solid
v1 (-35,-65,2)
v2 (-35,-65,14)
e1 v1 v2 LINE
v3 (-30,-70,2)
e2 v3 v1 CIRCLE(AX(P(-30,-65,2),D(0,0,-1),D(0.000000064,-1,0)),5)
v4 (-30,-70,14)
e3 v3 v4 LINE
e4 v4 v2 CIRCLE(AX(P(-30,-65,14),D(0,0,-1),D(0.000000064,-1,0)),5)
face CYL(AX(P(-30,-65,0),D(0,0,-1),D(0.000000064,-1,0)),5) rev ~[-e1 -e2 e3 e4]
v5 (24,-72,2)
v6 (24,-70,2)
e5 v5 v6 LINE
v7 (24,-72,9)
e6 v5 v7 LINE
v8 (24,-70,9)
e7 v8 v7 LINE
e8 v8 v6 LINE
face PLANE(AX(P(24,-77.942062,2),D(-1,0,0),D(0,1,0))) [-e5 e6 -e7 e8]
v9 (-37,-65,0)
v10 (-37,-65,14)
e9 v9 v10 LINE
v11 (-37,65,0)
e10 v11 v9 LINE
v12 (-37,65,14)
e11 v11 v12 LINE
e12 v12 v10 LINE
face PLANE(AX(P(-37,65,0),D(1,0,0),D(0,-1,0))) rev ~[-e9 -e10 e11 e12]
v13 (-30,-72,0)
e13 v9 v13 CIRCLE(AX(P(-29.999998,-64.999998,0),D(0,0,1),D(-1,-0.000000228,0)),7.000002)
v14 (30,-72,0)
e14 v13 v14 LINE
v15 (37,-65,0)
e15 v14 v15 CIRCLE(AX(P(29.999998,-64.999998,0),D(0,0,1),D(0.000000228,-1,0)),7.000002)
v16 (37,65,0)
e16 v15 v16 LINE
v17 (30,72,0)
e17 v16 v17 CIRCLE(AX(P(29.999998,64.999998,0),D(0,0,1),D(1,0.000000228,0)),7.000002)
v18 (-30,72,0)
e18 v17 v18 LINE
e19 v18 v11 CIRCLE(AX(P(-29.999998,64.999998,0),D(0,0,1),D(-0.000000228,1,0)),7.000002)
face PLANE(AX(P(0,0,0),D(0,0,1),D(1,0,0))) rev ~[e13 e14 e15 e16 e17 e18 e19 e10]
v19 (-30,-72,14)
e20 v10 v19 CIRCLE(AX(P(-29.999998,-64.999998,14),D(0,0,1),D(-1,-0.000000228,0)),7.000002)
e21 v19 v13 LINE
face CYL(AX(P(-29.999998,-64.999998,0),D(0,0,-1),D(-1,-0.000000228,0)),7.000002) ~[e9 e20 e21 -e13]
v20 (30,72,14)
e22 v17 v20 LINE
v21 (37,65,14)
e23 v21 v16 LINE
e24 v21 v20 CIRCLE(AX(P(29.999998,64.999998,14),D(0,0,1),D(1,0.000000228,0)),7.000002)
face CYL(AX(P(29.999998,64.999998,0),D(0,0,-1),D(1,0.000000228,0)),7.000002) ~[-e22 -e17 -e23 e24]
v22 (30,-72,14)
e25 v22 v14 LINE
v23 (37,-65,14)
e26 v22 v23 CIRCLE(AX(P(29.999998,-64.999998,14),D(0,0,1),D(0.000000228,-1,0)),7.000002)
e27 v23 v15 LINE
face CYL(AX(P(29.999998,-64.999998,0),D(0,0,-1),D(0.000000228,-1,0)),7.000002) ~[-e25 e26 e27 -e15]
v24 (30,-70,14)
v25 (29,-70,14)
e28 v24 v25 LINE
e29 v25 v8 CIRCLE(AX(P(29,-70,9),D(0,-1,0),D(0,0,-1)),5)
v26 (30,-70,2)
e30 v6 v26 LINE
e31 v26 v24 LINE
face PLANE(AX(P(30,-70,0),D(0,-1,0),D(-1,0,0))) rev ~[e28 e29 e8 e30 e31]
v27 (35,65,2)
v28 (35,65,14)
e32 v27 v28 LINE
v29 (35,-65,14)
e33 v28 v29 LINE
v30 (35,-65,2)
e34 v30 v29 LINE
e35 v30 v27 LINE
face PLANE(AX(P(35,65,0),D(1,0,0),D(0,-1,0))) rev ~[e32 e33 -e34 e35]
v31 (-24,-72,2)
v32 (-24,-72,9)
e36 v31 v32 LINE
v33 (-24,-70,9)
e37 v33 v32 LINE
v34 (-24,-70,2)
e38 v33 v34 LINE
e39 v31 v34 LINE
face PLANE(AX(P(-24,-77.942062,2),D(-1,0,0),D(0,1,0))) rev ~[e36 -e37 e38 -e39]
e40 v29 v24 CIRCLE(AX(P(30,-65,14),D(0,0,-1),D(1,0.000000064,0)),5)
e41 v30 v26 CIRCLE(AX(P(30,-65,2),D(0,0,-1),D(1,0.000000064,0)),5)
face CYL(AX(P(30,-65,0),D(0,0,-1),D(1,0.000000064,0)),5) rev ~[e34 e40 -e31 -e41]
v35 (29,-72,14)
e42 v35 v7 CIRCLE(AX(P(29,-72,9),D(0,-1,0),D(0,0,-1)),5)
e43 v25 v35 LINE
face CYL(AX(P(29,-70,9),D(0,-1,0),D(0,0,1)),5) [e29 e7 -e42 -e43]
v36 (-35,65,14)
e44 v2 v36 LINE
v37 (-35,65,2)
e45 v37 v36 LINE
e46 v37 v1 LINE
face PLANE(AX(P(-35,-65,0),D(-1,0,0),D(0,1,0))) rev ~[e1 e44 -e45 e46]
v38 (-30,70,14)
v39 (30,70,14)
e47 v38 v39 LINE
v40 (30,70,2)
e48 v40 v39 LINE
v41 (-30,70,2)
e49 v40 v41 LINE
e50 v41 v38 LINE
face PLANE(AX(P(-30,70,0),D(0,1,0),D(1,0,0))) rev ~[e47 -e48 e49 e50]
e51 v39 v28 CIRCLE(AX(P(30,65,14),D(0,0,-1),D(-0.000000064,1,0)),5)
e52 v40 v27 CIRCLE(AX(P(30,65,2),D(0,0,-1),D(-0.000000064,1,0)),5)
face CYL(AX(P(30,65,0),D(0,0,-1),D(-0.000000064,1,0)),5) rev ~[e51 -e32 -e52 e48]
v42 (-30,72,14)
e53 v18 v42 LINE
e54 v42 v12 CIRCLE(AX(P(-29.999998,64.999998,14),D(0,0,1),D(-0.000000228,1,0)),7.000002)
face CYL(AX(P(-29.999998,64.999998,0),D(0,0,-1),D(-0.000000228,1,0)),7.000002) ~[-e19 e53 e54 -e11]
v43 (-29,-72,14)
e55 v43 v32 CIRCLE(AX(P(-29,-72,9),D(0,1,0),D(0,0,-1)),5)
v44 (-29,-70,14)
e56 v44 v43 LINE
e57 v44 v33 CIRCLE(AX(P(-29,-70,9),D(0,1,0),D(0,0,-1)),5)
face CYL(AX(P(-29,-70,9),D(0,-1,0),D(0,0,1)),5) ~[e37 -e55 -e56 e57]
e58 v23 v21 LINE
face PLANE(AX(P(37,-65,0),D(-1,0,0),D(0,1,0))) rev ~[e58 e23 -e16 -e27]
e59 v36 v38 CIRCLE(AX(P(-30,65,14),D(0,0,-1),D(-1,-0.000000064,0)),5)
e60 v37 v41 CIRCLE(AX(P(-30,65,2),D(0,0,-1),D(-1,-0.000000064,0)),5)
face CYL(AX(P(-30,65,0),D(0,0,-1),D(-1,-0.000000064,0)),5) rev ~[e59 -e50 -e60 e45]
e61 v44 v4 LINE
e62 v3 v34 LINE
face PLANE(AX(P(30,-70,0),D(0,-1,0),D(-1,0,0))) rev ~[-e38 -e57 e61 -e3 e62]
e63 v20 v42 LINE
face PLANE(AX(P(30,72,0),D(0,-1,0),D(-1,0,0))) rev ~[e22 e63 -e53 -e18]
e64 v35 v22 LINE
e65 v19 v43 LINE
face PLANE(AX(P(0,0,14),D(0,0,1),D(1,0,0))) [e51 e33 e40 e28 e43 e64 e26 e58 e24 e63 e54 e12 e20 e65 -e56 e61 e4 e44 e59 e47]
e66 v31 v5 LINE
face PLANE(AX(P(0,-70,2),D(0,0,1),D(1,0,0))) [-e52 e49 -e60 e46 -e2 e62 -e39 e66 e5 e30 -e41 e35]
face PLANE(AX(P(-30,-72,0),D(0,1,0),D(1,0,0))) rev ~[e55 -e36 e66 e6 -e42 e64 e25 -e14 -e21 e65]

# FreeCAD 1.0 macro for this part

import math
import FreeCAD as App
import Part
import Sketcher
from FreeCAD import Vector
Q = App.Units.Quantity


def edges_at(feature, points):
    """Names of the edges that pass closest to the given points."""
    edges = feature.Shape.Edges
    near = lambda p: min(range(len(edges)), key=lambda i: edges[i].distToShape(Part.Vertex(*p))[0])
    return sorted({f"Edge{near(p) + 1}" for p in points})


def add_polygon(sketch, points):
    """Adds a closed chain of lines whose ends are joined by coincident constraints."""
    first, n = sketch.GeometryCount, len(points)
    for a, b in zip(points, points[1:] + points[:1]):
        sketch.addGeometry(Part.LineSegment(App.Vector(*a, 0), App.Vector(*b, 0)), False)
    for i in range(n):
        sketch.addConstraint(Sketcher.Constraint("Coincident", first + i, 2, first + (i + 1) % n, 1))

doc = App.newDocument("Part")
body = doc.addObject("PartDesign::Body", "Body")

# Sketch on XY plane
sketch1 = doc.addObject("Sketcher::SketchObject", "Sketch")
body.addObject(sketch1)
sketch1.AttachmentSupport = (doc.XY_Plane, [""])
sketch1.MapMode = "FlatFace"
sketch1.addGeometry([
    Part.ArcOfCircle(Part.Circle(Vector(29.999998, 64.999998, 0), Vector(0, 0, 1), 7.000002), math.radians(0.000013), math.radians(89.999987)),  # 0
    Part.LineSegment(Vector(30, 72, 0), Vector(-30, 72, 0)),  # 1
    Part.ArcOfCircle(Part.Circle(Vector(-29.999998, 64.999998, 0), Vector(0, 0, 1), 7.000002), math.radians(90.000013), math.radians(179.999987)),  # 2
    Part.LineSegment(Vector(-37, 65, 0), Vector(-37, -65, 0)),  # 3
    Part.ArcOfCircle(Part.Circle(Vector(-29.999998, -64.999998, 0), Vector(0, 0, 1), 7.000002), math.radians(-179.999987), math.radians(-90.000013)),  # 4
    Part.LineSegment(Vector(-30, -72, 0), Vector(30, -72, 0)),  # 5
    Part.ArcOfCircle(Part.Circle(Vector(29.999998, -64.999998, 0), Vector(0, 0, 1), 7.000002), math.radians(-89.999987), math.radians(-0.000013)),  # 6
    Part.LineSegment(Vector(37, -65, 0), Vector(37, 65, 0)),  # 7
], False)
sketch1.addConstraint([
    Sketcher.Constraint("Tangent", 0, 2, 1, 1),
    Sketcher.Constraint("Tangent", 1, 2, 2, 1),
    Sketcher.Constraint("Tangent", 2, 2, 3, 1),
    Sketcher.Constraint("Tangent", 3, 2, 4, 1),
    Sketcher.Constraint("Tangent", 4, 2, 5, 1),
    Sketcher.Constraint("Tangent", 5, 2, 6, 1),
    Sketcher.Constraint("Tangent", 6, 2, 7, 1),
    Sketcher.Constraint("Tangent", 7, 2, 0, 1),
    Sketcher.Constraint("Horizontal", 1),
    Sketcher.Constraint("Vertical", 3),
    Sketcher.Constraint("Horizontal", 5),
    Sketcher.Constraint("Vertical", 7),
    Sketcher.Constraint("Equal", 0, 2),
    Sketcher.Constraint("Equal", 2, 4),
    Sketcher.Constraint("Equal", 4, 6),
    Sketcher.Constraint("Symmetric", 0, 3, 4, 3, -1, 1),
    Sketcher.Constraint("Radius", 0, Q("7.000002 mm")),
    Sketcher.Constraint("DistanceX", 1, 2, 1, 1, Q("60 mm")),
    Sketcher.Constraint("DistanceY", 3, 2, 3, 1, Q("130 mm")),
])
pad1 = doc.addObject("PartDesign::Pad", "Pad")
body.addObject(pad1)
pad1.Profile = sketch1
pad1.Length = 2

# Sketch on XY plane
sketch2 = doc.addObject("Sketcher::SketchObject", "Sketch001")
body.addObject(sketch2)
sketch2.AttachmentSupport = (doc.XY_Plane, [""])
sketch2.MapMode = "FlatFace"
sketch2.addGeometry([
    Part.ArcOfCircle(Part.Circle(Vector(29.999998, 64.999998, 0), Vector(0, 0, 1), 7.000002), math.radians(0.000013), math.radians(89.999987)),  # 0
    Part.LineSegment(Vector(30, 72, 0), Vector(-30, 72, 0)),  # 1
    Part.ArcOfCircle(Part.Circle(Vector(-29.999998, 64.999998, 0), Vector(0, 0, 1), 7.000002), math.radians(90.000013), math.radians(179.999987)),  # 2
    Part.LineSegment(Vector(-37, 65, 0), Vector(-37, -65, 0)),  # 3
    Part.ArcOfCircle(Part.Circle(Vector(-29.999998, -64.999998, 0), Vector(0, 0, 1), 7.000002), math.radians(-179.999987), math.radians(-90.000013)),  # 4
    Part.LineSegment(Vector(-30, -72, 0), Vector(30, -72, 0)),  # 5
    Part.ArcOfCircle(Part.Circle(Vector(29.999998, -64.999998, 0), Vector(0, 0, 1), 7.000002), math.radians(-89.999987), math.radians(-0.000013)),  # 6
    Part.LineSegment(Vector(37, -65, 0), Vector(37, 65, 0)),  # 7
    Part.ArcOfCircle(Part.Circle(Vector(-30, 65, 0), Vector(0, 0, 1), 5), math.radians(89.999996), math.radians(180.000004)),  # 8
    Part.LineSegment(Vector(-30, 70, 0), Vector(30, 70, 0)),  # 9
    Part.ArcOfCircle(Part.Circle(Vector(30, 65, 0), Vector(0, 0, 1), 5), math.radians(-0.000004), math.radians(90.000004)),  # 10
    Part.LineSegment(Vector(35, 65, 0), Vector(35, -65, 0)),  # 11
    Part.ArcOfCircle(Part.Circle(Vector(30, -65, 0), Vector(0, 0, 1), 5), math.radians(-90.000004), math.radians(0.000004)),  # 12
    Part.LineSegment(Vector(30, -70, 0), Vector(-30, -70, 0)),  # 13
    Part.ArcOfCircle(Part.Circle(Vector(-30, -65, 0), Vector(0, 0, 1), 5), math.radians(179.999996), math.radians(270.000004)),  # 14
    Part.LineSegment(Vector(-35, -65, 0), Vector(-35, 65, 0)),  # 15
], False)
sketch2.addConstraint([
    Sketcher.Constraint("Tangent", 0, 2, 1, 1),
    Sketcher.Constraint("Tangent", 1, 2, 2, 1),
    Sketcher.Constraint("Tangent", 2, 2, 3, 1),
    Sketcher.Constraint("Tangent", 3, 2, 4, 1),
    Sketcher.Constraint("Tangent", 4, 2, 5, 1),
    Sketcher.Constraint("Tangent", 5, 2, 6, 1),
    Sketcher.Constraint("Tangent", 6, 2, 7, 1),
    Sketcher.Constraint("Tangent", 7, 2, 0, 1),
    Sketcher.Constraint("Tangent", 8, 1, 9, 1),
    Sketcher.Constraint("Tangent", 9, 2, 10, 2),
    Sketcher.Constraint("Tangent", 10, 1, 11, 1),
    Sketcher.Constraint("Tangent", 11, 2, 12, 2),
    Sketcher.Constraint("Tangent", 12, 1, 13, 1),
    Sketcher.Constraint("Tangent", 13, 2, 14, 2),
    Sketcher.Constraint("Tangent", 14, 1, 15, 1),
    Sketcher.Constraint("Tangent", 15, 2, 8, 2),
    Sketcher.Constraint("Horizontal", 1),
    Sketcher.Constraint("Vertical", 3),
    Sketcher.Constraint("Horizontal", 5),
    Sketcher.Constraint("Vertical", 7),
    Sketcher.Constraint("Horizontal", 9),
    Sketcher.Constraint("Vertical", 11),
    Sketcher.Constraint("Horizontal", 13),
    Sketcher.Constraint("Vertical", 15),
    Sketcher.Constraint("Coincident", 8, 3, 2, 3),
    Sketcher.Constraint("Coincident", 10, 3, 0, 3),
    Sketcher.Constraint("Coincident", 12, 3, 6, 3),
    Sketcher.Constraint("Equal", 0, 2),
    Sketcher.Constraint("Equal", 2, 4),
    Sketcher.Constraint("Equal", 4, 6),
    Sketcher.Constraint("Equal", 12, 14),
    Sketcher.Constraint("Symmetric", 0, 3, 4, 3, -1, 1),
    Sketcher.Constraint("Radius", 0, Q("7.000002 mm")),
    Sketcher.Constraint("Radius", 8, Q("5 mm")),
    Sketcher.Constraint("DistanceX", 1, 2, 1, 1, Q("60 mm")),
    Sketcher.Constraint("DistanceY", 3, 2, 3, 1, Q("130 mm")),
])
pad2 = doc.addObject("PartDesign::Pad", "Pad001")
body.addObject(pad2)
pad2.Profile = sketch2
pad2.Length = 14

# Sketch on XY plane
sketch3 = doc.addObject("Sketcher::SketchObject", "Sketch002")
body.addObject(sketch3)
sketch3.AttachmentSupport = (doc.XY_Plane, [""])
sketch3.MapMode = "FlatFace"
sketch3.AttachmentOffset = App.Placement(Vector(0, 0, 2), App.Rotation())
add_polygon(sketch3, [(-24, -62.057938), (-24, -77.942062), (24, -77.942062), (24, -62.057938)])  # lines 0-3
sketch3.addConstraint([
    Sketcher.Constraint("Vertical", 0),
    Sketcher.Constraint("Horizontal", 1),
    Sketcher.Constraint("Vertical", 2),
    Sketcher.Constraint("Horizontal", 3),
    Sketcher.Constraint("DistanceX", 1, 1, 1, 2, Q("48 mm")),
    Sketcher.Constraint("DistanceX", 0, 2, -1, 1, Q("24 mm")),
    Sketcher.Constraint("DistanceY", 0, 2, 0, 1, Q("15.884124 mm")),
    Sketcher.Constraint("DistanceY", 0, 2, -1, 1, Q("77.942062 mm")),
])
pocket1 = doc.addObject("PartDesign::Pocket", "Pocket")
body.addObject(pocket1)
pocket1.Profile = sketch3
pocket1.Length = 25
pocket1.Reversed = True
doc.recompute()

fillet = doc.addObject("PartDesign::Fillet", "Fillet")
body.addObject(fillet)
fillet.Base = (pocket1, edges_at(pocket1, [(-24, -71, 14), (24, -71, 14)]))
fillet.Radius = 5

doc.recompute()
